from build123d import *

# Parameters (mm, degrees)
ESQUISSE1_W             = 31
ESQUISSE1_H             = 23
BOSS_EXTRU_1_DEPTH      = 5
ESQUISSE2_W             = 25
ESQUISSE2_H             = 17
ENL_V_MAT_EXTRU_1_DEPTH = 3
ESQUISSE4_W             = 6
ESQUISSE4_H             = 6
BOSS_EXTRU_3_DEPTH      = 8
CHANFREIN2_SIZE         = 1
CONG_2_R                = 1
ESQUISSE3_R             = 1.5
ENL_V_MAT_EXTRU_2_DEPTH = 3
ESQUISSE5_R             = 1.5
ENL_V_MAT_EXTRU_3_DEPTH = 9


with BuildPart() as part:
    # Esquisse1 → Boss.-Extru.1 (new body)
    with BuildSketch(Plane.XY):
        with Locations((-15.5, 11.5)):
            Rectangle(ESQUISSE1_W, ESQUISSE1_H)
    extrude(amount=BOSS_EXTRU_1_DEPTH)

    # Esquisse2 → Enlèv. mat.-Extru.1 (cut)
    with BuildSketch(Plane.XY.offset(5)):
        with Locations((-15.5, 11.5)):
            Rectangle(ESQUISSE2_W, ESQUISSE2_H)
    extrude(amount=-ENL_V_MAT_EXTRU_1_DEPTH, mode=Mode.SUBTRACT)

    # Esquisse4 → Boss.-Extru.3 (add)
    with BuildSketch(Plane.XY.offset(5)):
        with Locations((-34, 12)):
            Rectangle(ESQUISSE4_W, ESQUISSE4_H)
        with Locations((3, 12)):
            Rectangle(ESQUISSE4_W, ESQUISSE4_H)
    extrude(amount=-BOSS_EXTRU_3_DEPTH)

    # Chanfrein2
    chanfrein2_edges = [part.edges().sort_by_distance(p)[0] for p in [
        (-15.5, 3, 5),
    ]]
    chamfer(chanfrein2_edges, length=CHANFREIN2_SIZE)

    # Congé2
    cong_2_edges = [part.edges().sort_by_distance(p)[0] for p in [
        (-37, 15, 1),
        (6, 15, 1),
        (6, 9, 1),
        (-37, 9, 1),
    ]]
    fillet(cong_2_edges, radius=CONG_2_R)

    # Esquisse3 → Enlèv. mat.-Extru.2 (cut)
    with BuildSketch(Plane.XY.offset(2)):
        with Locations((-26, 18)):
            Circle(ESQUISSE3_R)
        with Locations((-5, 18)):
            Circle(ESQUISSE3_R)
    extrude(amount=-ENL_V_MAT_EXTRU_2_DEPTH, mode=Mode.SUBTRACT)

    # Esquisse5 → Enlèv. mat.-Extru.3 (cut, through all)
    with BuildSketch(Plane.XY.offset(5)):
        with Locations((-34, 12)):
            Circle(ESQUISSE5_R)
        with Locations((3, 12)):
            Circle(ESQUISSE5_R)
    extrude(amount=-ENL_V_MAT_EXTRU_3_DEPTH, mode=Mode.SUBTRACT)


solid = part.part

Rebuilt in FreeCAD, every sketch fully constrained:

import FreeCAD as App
import Part
import Sketcher

V = App.Vector
Q = App.Units.Quantity


def edges_at(feature, points):
    """Names of the edges that pass closest to the given points."""
    edges = feature.Shape.Edges
    near = lambda p: min(range(len(edges)), key=lambda i: edges[i].distToShape(Part.Vertex(*p))[0])
    return sorted({f"Edge{near(p) + 1}" for p in points})


def add_polygon(sketch, points):
    """Adds a closed chain of lines whose ends are joined by coincident constraints."""
    first, n = sketch.GeometryCount, len(points)
    for a, b in zip(points, points[1:] + points[:1]):
        sketch.addGeometry(Part.LineSegment(App.Vector(*a, 0), App.Vector(*b, 0)), False)
    for i in range(n):
        sketch.addConstraint(Sketcher.Constraint("Coincident", first + i, 2, first + (i + 1) % n, 1))

doc = App.newDocument("Part")
body = doc.addObject("PartDesign::Body", "Body")

# Sketch on XY plane
sketch1 = body.newObject("Sketcher::SketchObject", "Sketch")
sketch1.AttachmentSupport = (doc.getObject("XY_Plane"), [""])
sketch1.MapMode = "FlatFace"
add_polygon(sketch1, [(-31, 23), (-31, 0), (0, 0), (0, 23)])  # lines 0-3
sketch1.addConstraint([
    Sketcher.Constraint("Vertical", 0),
    Sketcher.Constraint("Horizontal", 1),
    Sketcher.Constraint("Vertical", 2),
    Sketcher.Constraint("Horizontal", 3),
    Sketcher.Constraint("Coincident", 1, 2, -1, 1),
    Sketcher.Constraint("DistanceX", 1, 1, 1, 2, Q("31 mm")),
    Sketcher.Constraint("DistanceY", 0, 2, 0, 1, Q("23 mm")),
])
pad1 = body.newObject("PartDesign::Pad", "Pad")
pad1.Profile = sketch1
pad1.Length = 5

# Sketch on XY plane
sketch2 = body.newObject("Sketcher::SketchObject", "Sketch001")
sketch2.AttachmentSupport = (doc.getObject("XY_Plane"), [""])
sketch2.MapMode = "FlatFace"
sketch2.AttachmentOffset = App.Placement(V(0, 0, 5), App.Rotation())
add_polygon(sketch2, [(-28, 20), (-28, 3), (-3, 3), (-3, 20)])  # lines 0-3
sketch2.addConstraint([
    Sketcher.Constraint("Vertical", 0),
    Sketcher.Constraint("Horizontal", 1),
    Sketcher.Constraint("Vertical", 2),
    Sketcher.Constraint("Horizontal", 3),
    Sketcher.Constraint("DistanceX", 1, 1, 1, 2, Q("25 mm")),
    Sketcher.Constraint("DistanceY", 0, 2, 0, 1, Q("17 mm")),
    Sketcher.Constraint("DistanceX", 0, 2, -1, 1, Q("28 mm")),
    Sketcher.Constraint("DistanceY", -1, 1, 0, 2, Q("3 mm")),
])
pocket1 = body.newObject("PartDesign::Pocket", "Pocket")
pocket1.Profile = sketch2
pocket1.Length = 3

# Sketch on XY plane
sketch3 = body.newObject("Sketcher::SketchObject", "Sketch002")
sketch3.AttachmentSupport = (doc.getObject("XY_Plane"), [""])
sketch3.MapMode = "FlatFace"
sketch3.AttachmentOffset = App.Placement(V(0, 0, 5), App.Rotation())
add_polygon(sketch3, [(-37, 15), (-37, 9), (-31, 9), (-31, 15)])  # lines 0-3
add_polygon(sketch3, [(0, 15), (0, 9), (6, 9), (6, 15)])  # lines 4-7
sketch3.addConstraint([
    Sketcher.Constraint("Vertical", 0),
    Sketcher.Constraint("Horizontal", 1),
    Sketcher.Constraint("Vertical", 2),
    Sketcher.Constraint("Horizontal", 3),
    Sketcher.Constraint("Vertical", 4),
    Sketcher.Constraint("Horizontal", 5),
    Sketcher.Constraint("Vertical", 6),
    Sketcher.Constraint("Horizontal", 7),
    Sketcher.Constraint("PointOnObject", 4, 2, -2),
    Sketcher.Constraint("Horizontal", 1, 2, 4, 2),
    Sketcher.Constraint("Horizontal", 3, 2, 6, 2),
    Sketcher.Constraint("Equal", 3, 5),
    Sketcher.Constraint("Equal", 7, 0),
    Sketcher.Constraint("DistanceX", 1, 1, 1, 2, Q("6 mm")),
    Sketcher.Constraint("DistanceX", 0, 2, -1, 1, Q("37 mm")),
    Sketcher.Constraint("DistanceY", -1, 1, 0, 2, Q("9 mm")),
])
pad2 = body.newObject("PartDesign::Pad", "Pad001")
pad2.Profile = sketch3
pad2.Length = 8
pad2.Reversed = True
doc.recompute()

chamfer = body.newObject("PartDesign::Chamfer", "Chamfer")
chamfer.Base = (pad2, edges_at(pad2, [(-15.5, 3, 5)]))
chamfer.Size = 1
doc.recompute()

fillet = body.newObject("PartDesign::Fillet", "Fillet")
fillet.Base = (chamfer, edges_at(chamfer, [
    (-37, 15, 1),
    (6, 15, 1),
    (6, 9, 1),
    (-37, 9, 1),
]))
fillet.Radius = 1

# Sketch on XY plane
sketch4 = body.newObject("Sketcher::SketchObject", "Sketch003")
sketch4.AttachmentSupport = (doc.getObject("XY_Plane"), [""])
sketch4.MapMode = "FlatFace"
sketch4.AttachmentOffset = App.Placement(V(0, 0, 2), App.Rotation())
sketch4.addGeometry([
    Part.Circle(V(-26, 18, 0), V(0, 0, 1), 1.5),
    Part.Circle(V(-5, 18, 0), V(0, 0, 1), 1.5),
], False)
sketch4.addConstraint([
    Sketcher.Constraint("Equal", 0, 1),
    Sketcher.Constraint("Horizontal", 0, 3, 1, 3),
    Sketcher.Constraint("Diameter", 0, Q("3 mm")),
    Sketcher.Constraint("DistanceX", 0, 3, -1, 1, Q("26 mm")),
    Sketcher.Constraint("DistanceY", -1, 1, 0, 3, Q("18 mm")),
    Sketcher.Constraint("DistanceX", 1, 3, -1, 1, Q("5 mm")),
])
pocket2 = body.newObject("PartDesign::Pocket", "Pocket001")
pocket2.Profile = sketch4
pocket2.Length = 3

# Sketch on XY plane
sketch5 = body.newObject("Sketcher::SketchObject", "Sketch004")
sketch5.AttachmentSupport = (doc.getObject("XY_Plane"), [""])
sketch5.MapMode = "FlatFace"
sketch5.AttachmentOffset = App.Placement(V(0, 0, 5), App.Rotation())
sketch5.addGeometry([
    Part.Circle(V(-34, 12, 0), V(0, 0, 1), 1.5),
    Part.Circle(V(3, 12, 0), V(0, 0, 1), 1.5),
], False)
sketch5.addConstraint([
    Sketcher.Constraint("Equal", 0, 1),
    Sketcher.Constraint("Horizontal", 0, 3, 1, 3),
    Sketcher.Constraint("Diameter", 0, Q("3 mm")),
    Sketcher.Constraint("DistanceX", 0, 3, -1, 1, Q("34 mm")),
    Sketcher.Constraint("DistanceY", -1, 1, 0, 3, Q("12 mm")),
    Sketcher.Constraint("DistanceX", -1, 1, 1, 3, Q("3 mm")),
])
pocket3 = body.newObject("PartDesign::Pocket", "Pocket002")
pocket3.Profile = sketch5
pocket3.Type = "ThroughAll"

doc.recompute()
